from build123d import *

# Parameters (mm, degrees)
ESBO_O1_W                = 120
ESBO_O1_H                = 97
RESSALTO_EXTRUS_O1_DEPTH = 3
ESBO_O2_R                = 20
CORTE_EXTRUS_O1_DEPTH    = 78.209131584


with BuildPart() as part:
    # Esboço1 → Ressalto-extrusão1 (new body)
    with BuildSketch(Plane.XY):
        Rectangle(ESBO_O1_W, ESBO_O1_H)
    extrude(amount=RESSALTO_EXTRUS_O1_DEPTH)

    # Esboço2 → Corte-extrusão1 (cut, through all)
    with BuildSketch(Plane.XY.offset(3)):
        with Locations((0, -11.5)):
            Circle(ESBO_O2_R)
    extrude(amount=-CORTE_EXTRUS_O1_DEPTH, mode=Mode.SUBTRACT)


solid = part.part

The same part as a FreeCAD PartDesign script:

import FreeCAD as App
import Part
import Sketcher
Q = App.Units.Quantity

doc = App.newDocument("Part")
body = doc.addObject("PartDesign::Body", "Body")

# Sketch on XY plane
sketch1 = doc.addObject("Sketcher::SketchObject", "Sketch")
body.addObject(sketch1)
sketch1.AttachmentSupport = (doc.XY_Plane, [""])
sketch1.MapMode = "FlatFace"
sketch1.addGeometry([
    Part.LineSegment(App.Vector(-60, 48, 0), App.Vector(-60, -48, 0)),
    Part.LineSegment(App.Vector(-60, -48, 0), App.Vector(60, -48, 0)),
    Part.LineSegment(App.Vector(60, -48, 0), App.Vector(60, 48, 0)),
    Part.LineSegment(App.Vector(60, 48, 0), App.Vector(-60, 48, 0)),
], False)
sketch1.addConstraint([
    Sketcher.Constraint("Coincident", 0, 2, 1, 1),
    Sketcher.Constraint("Coincident", 1, 2, 2, 1),
    Sketcher.Constraint("Coincident", 2, 2, 3, 1),
    Sketcher.Constraint("Coincident", 3, 2, 0, 1),
    Sketcher.Constraint("Vertical", 0),
    Sketcher.Constraint("Horizontal", 1),
    Sketcher.Constraint("Vertical", 2),
    Sketcher.Constraint("Horizontal", 3),
    Sketcher.Constraint("Symmetric", 0, 2, 2, 2, -1, 1),
    Sketcher.Constraint("DistanceX", 1, 1, 1, 2, Q("120 mm")),
    Sketcher.Constraint("DistanceY", 0, 2, 0, 1, Q("97 mm")),
])
pad1 = doc.addObject("PartDesign::Pad", "Pad")
body.addObject(pad1)
pad1.Profile = sketch1
pad1.Length = 3

# Sketch on XY plane
sketch2 = doc.addObject("Sketcher::SketchObject", "Sketch001")
body.addObject(sketch2)
sketch2.AttachmentSupport = (doc.XY_Plane, [""])
sketch2.MapMode = "FlatFace"
sketch2.AttachmentOffset = App.Placement(App.Vector(0, 0, 3), App.Rotation())
sketch2.addGeometry(Part.Circle(App.Vector(0, -12, 0), App.Vector(0, 0, 1), 20), False)
sketch2.addConstraint([
    Sketcher.Constraint("PointOnObject", 0, 3, -2),
    Sketcher.Constraint("Diameter", 0, Q("40 mm")),
    Sketcher.Constraint("DistanceY", 0, 3, -1, 1, Q("11.5 mm")),
])
pocket1 = doc.addObject("PartDesign::Pocket", "Pocket")
body.addObject(pocket1)
pocket1.Profile = sketch2
pocket1.Type = "ThroughAll"

doc.recompute()
